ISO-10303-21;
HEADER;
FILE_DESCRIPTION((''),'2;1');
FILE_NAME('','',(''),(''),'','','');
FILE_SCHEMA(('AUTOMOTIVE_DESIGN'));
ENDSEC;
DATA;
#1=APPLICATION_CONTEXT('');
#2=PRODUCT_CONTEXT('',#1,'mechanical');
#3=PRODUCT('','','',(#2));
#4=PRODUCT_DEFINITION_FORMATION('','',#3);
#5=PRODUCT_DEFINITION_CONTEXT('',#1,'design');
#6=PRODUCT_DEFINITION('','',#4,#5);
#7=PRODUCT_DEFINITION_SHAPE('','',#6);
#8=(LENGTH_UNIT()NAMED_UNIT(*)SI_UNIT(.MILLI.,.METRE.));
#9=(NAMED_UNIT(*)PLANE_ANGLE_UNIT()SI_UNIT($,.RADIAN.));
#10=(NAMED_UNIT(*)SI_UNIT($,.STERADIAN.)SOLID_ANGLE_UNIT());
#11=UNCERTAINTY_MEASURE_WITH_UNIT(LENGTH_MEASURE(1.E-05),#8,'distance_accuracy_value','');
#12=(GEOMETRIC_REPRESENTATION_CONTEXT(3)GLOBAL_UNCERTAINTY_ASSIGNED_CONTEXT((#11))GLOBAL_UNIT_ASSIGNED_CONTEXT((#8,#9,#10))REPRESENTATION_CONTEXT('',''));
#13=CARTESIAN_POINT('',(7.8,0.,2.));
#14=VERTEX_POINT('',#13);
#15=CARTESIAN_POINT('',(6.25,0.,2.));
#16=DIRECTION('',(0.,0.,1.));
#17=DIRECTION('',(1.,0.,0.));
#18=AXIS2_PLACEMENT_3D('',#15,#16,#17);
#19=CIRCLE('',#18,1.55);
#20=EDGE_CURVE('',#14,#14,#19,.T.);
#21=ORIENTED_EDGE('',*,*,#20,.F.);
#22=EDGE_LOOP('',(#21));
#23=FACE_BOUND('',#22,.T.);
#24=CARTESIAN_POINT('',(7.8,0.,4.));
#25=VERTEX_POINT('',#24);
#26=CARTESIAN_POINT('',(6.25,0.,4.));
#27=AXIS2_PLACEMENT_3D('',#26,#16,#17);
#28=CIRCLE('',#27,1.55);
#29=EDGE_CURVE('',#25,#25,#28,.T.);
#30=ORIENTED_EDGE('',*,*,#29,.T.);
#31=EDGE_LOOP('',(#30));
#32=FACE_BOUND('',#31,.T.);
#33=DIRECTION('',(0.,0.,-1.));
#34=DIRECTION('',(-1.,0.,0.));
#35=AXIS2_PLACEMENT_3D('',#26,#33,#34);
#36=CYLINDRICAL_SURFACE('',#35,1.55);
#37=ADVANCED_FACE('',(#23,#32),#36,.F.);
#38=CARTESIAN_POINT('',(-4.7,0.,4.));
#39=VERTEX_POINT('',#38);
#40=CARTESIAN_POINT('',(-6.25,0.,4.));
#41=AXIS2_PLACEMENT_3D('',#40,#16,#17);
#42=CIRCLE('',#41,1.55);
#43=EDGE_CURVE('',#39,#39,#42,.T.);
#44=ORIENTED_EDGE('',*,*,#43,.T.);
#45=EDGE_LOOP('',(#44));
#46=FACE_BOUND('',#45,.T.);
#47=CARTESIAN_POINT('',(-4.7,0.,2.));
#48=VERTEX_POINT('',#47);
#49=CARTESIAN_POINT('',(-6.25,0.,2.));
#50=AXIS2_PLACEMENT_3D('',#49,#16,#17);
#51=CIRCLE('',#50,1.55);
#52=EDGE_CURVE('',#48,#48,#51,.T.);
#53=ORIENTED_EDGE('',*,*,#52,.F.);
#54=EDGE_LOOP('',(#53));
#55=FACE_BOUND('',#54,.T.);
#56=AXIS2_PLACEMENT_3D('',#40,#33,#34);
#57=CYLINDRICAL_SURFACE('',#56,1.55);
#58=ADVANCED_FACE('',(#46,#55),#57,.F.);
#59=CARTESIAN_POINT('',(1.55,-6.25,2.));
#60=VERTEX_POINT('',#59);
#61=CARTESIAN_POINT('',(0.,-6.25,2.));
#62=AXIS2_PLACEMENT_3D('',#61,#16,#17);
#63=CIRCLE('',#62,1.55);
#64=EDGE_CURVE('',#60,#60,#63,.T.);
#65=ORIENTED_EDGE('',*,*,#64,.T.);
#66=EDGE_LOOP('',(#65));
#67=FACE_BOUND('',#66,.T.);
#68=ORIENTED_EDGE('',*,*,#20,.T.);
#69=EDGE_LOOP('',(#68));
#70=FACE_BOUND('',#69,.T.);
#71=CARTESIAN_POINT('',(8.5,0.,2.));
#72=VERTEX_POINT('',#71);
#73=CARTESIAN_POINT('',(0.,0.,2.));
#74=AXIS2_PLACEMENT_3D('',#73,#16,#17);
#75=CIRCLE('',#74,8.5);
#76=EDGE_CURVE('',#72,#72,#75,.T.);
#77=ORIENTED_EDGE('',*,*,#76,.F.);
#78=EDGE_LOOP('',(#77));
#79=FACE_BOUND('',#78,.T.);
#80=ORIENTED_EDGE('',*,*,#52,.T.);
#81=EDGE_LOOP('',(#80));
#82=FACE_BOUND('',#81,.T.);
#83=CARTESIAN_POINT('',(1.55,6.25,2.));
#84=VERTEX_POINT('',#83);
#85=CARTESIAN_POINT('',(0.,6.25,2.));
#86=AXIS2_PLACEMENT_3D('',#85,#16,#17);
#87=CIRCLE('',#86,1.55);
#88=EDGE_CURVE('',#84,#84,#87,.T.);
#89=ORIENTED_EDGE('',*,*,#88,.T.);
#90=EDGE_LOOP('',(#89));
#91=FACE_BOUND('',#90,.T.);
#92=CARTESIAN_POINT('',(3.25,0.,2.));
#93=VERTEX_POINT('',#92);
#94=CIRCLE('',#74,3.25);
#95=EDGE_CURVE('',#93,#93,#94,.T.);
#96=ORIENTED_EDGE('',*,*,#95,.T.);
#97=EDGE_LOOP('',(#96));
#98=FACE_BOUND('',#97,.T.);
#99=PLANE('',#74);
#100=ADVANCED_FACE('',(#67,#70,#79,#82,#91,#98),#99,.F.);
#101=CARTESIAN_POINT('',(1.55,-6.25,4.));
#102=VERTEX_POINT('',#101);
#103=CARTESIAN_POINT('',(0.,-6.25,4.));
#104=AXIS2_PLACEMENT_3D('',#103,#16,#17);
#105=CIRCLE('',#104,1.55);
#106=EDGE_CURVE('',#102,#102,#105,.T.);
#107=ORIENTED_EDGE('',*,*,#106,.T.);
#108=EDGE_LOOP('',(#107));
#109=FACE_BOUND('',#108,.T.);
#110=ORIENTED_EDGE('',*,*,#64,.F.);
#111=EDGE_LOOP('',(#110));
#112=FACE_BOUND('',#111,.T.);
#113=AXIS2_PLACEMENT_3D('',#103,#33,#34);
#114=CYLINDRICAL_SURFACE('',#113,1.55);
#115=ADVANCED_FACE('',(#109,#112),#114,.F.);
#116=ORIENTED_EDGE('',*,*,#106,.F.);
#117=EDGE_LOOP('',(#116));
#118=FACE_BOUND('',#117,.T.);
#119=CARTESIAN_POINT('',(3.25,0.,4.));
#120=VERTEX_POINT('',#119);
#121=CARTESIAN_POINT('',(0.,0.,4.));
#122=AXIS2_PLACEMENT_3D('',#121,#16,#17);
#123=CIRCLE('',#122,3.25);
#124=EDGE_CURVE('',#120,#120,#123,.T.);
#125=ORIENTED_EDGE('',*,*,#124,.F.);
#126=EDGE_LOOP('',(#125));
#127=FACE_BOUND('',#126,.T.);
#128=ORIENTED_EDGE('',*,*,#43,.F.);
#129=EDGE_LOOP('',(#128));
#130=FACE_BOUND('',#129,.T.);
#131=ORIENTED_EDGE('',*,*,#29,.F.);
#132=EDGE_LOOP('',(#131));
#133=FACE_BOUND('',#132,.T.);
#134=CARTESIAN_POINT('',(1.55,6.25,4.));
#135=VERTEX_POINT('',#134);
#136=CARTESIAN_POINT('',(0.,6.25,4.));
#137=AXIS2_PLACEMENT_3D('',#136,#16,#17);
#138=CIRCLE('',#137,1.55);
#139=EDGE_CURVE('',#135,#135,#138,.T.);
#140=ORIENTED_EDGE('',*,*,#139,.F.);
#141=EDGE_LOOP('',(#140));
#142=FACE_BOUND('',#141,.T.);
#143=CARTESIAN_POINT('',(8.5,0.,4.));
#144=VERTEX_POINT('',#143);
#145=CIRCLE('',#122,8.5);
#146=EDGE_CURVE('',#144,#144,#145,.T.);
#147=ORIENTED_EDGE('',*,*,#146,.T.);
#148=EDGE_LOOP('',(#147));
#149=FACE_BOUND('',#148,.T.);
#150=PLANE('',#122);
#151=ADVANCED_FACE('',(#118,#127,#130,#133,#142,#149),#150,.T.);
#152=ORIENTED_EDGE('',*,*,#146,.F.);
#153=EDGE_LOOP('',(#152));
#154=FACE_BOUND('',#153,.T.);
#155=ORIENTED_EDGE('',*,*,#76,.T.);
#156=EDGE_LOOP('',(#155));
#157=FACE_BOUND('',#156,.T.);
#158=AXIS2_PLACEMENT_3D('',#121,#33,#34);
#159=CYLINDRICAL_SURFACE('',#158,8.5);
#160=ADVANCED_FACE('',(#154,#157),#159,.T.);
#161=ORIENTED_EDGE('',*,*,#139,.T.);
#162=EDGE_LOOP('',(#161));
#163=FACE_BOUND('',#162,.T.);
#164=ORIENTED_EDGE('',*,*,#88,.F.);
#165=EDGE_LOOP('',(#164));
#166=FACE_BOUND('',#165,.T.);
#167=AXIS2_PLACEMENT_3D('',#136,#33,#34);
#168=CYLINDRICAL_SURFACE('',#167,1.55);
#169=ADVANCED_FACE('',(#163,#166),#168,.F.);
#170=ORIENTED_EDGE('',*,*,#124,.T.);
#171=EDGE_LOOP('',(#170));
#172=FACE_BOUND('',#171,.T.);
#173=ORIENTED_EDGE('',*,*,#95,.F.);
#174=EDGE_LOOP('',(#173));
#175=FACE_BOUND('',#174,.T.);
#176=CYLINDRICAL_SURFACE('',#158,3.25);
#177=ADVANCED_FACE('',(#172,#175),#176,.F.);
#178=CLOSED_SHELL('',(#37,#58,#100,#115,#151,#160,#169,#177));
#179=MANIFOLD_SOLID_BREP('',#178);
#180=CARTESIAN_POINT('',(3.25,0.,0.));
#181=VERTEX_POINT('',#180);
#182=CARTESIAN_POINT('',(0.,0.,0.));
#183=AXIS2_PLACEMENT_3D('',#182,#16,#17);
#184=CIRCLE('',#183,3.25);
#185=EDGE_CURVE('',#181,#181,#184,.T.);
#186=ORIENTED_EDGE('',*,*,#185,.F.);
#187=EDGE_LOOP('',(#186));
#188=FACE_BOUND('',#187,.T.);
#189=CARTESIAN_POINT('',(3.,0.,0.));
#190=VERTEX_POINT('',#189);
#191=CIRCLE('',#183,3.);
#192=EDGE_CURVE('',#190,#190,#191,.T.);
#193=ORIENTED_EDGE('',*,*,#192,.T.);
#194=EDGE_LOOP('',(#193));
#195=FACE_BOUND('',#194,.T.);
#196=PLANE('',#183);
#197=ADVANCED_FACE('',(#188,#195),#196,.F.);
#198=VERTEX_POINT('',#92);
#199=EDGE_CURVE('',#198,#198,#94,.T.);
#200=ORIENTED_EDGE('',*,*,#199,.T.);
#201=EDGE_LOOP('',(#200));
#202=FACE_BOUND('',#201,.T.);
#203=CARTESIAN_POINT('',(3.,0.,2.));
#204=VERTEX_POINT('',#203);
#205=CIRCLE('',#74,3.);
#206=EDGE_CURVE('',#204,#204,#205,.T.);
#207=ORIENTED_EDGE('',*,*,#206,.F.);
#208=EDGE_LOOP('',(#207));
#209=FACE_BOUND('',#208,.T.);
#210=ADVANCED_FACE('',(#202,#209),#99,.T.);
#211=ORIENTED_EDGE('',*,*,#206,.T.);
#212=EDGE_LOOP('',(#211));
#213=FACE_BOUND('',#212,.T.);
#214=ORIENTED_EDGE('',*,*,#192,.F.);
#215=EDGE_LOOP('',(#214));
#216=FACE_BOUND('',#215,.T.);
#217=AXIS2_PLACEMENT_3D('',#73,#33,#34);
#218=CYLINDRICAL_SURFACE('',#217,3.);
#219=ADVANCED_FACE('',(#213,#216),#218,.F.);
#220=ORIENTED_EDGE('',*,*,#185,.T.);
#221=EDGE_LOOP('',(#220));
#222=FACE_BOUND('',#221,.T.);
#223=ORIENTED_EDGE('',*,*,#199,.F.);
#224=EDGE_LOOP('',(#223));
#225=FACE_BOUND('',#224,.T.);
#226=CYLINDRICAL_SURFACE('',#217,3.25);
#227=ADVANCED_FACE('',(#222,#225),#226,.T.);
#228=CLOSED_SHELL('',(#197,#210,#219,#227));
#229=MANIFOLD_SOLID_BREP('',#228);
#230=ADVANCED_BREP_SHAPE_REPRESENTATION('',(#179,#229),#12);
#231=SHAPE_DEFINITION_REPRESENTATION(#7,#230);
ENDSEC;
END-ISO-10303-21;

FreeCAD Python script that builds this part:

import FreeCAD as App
import Part
import Sketcher

V = App.Vector
Q = App.Units.Quantity

doc = App.newDocument("Part")
body = doc.addObject("PartDesign::Body", "Body")

# Sketch on XY plane
sketch1 = body.newObject("Sketcher::SketchObject", "Sketch")
sketch1.AttachmentSupport = (doc.getObject("XY_Plane"), [""])
sketch1.MapMode = "FlatFace"
sketch1.addGeometry(Part.Circle(V(0, 0, 0), V(0, 0, 1), 3.25), False)
sketch1.addGeometry(Part.Circle(V(0, 0, 0), V(0, 0, 1), 3), False)
sketch1.addConstraint(Sketcher.Constraint("Coincident", 0, 3, -1, 1))
sketch1.addConstraint(Sketcher.Constraint("Coincident", 1, 3, -1, 1))
sketch1.addConstraint(Sketcher.Constraint("Diameter", 1, Q("6 mm")))
sketch1.addConstraint(Sketcher.Constraint("Diameter", 0, Q("6.5 mm")))
pad1 = body.newObject("PartDesign::Pad", "Pad")
pad1.Profile = sketch1
pad1.Length = 2
body2 = doc.addObject("PartDesign::Body", "Body001")

# Sketch on XY plane
sketch2 = body2.newObject("Sketcher::SketchObject", "Sketch001")
sketch2.AttachmentSupport = (doc.getObject("XY_Plane001"), [""])
sketch2.MapMode = "FlatFace"
sketch2.AttachmentOffset = App.Placement(V(0, 0, 2), App.Rotation())
sketch2.addGeometry(Part.Circle(V(0, 0, 0), V(0, 0, 1), 8.5), False)
sketch2.addGeometry(Part.Circle(V(0, -6.25, 0), V(0, 0, 1), 1.55), False)
sketch2.addGeometry(Part.Circle(V(-6.25, 0, 0), V(0, 0, 1), 1.55), False)
sketch2.addGeometry(Part.Circle(V(0, 0, 0), V(0, 0, 1), 3.25), False)
sketch2.addGeometry(Part.Circle(V(6.25, 0, 0), V(0, 0, 1), 1.55), False)
sketch2.addGeometry(Part.Circle(V(0, 6.25, 0), V(0, 0, 1), 1.55), False)
sketch2.addConstraint(Sketcher.Constraint("Coincident", 0, 3, -1, 1))
sketch2.addConstraint(Sketcher.Constraint("Coincident", 3, 3, -1, 1))
sketch2.addConstraint(Sketcher.Constraint("Equal", 1, 2))
sketch2.addConstraint(Sketcher.Constraint("Equal", 2, 4))
sketch2.addConstraint(Sketcher.Constraint("Equal", 4, 5))
sketch2.addConstraint(Sketcher.Constraint("Symmetric", 2, 3, 4, 3, -1, 1))
sketch2.addConstraint(Sketcher.Constraint("Symmetric", 1, 3, 5, 3, -1, 1))
sketch2.addConstraint(Sketcher.Constraint("PointOnObject", 1, 3, -2))
sketch2.addConstraint(Sketcher.Constraint("PointOnObject", 2, 3, -1))
sketch2.addConstraint(Sketcher.Constraint("Diameter", 0, Q("17 mm")))
sketch2.addConstraint(Sketcher.Constraint("Diameter", 1, Q("3.1 mm")))
sketch2.addConstraint(Sketcher.Constraint("Diameter", 3, Q("6.5 mm")))
sketch2.addConstraint(Sketcher.Constraint("DistanceX", 2, 3, 4, 3, Q("12.5 mm")))
sketch2.addConstraint(Sketcher.Constraint("DistanceY", 1, 3, 5, 3, Q("12.5 mm")))
pad2 = body2.newObject("PartDesign::Pad", "Pad001")
pad2.Profile = sketch2
pad2.Length = 2

doc.recompute()
